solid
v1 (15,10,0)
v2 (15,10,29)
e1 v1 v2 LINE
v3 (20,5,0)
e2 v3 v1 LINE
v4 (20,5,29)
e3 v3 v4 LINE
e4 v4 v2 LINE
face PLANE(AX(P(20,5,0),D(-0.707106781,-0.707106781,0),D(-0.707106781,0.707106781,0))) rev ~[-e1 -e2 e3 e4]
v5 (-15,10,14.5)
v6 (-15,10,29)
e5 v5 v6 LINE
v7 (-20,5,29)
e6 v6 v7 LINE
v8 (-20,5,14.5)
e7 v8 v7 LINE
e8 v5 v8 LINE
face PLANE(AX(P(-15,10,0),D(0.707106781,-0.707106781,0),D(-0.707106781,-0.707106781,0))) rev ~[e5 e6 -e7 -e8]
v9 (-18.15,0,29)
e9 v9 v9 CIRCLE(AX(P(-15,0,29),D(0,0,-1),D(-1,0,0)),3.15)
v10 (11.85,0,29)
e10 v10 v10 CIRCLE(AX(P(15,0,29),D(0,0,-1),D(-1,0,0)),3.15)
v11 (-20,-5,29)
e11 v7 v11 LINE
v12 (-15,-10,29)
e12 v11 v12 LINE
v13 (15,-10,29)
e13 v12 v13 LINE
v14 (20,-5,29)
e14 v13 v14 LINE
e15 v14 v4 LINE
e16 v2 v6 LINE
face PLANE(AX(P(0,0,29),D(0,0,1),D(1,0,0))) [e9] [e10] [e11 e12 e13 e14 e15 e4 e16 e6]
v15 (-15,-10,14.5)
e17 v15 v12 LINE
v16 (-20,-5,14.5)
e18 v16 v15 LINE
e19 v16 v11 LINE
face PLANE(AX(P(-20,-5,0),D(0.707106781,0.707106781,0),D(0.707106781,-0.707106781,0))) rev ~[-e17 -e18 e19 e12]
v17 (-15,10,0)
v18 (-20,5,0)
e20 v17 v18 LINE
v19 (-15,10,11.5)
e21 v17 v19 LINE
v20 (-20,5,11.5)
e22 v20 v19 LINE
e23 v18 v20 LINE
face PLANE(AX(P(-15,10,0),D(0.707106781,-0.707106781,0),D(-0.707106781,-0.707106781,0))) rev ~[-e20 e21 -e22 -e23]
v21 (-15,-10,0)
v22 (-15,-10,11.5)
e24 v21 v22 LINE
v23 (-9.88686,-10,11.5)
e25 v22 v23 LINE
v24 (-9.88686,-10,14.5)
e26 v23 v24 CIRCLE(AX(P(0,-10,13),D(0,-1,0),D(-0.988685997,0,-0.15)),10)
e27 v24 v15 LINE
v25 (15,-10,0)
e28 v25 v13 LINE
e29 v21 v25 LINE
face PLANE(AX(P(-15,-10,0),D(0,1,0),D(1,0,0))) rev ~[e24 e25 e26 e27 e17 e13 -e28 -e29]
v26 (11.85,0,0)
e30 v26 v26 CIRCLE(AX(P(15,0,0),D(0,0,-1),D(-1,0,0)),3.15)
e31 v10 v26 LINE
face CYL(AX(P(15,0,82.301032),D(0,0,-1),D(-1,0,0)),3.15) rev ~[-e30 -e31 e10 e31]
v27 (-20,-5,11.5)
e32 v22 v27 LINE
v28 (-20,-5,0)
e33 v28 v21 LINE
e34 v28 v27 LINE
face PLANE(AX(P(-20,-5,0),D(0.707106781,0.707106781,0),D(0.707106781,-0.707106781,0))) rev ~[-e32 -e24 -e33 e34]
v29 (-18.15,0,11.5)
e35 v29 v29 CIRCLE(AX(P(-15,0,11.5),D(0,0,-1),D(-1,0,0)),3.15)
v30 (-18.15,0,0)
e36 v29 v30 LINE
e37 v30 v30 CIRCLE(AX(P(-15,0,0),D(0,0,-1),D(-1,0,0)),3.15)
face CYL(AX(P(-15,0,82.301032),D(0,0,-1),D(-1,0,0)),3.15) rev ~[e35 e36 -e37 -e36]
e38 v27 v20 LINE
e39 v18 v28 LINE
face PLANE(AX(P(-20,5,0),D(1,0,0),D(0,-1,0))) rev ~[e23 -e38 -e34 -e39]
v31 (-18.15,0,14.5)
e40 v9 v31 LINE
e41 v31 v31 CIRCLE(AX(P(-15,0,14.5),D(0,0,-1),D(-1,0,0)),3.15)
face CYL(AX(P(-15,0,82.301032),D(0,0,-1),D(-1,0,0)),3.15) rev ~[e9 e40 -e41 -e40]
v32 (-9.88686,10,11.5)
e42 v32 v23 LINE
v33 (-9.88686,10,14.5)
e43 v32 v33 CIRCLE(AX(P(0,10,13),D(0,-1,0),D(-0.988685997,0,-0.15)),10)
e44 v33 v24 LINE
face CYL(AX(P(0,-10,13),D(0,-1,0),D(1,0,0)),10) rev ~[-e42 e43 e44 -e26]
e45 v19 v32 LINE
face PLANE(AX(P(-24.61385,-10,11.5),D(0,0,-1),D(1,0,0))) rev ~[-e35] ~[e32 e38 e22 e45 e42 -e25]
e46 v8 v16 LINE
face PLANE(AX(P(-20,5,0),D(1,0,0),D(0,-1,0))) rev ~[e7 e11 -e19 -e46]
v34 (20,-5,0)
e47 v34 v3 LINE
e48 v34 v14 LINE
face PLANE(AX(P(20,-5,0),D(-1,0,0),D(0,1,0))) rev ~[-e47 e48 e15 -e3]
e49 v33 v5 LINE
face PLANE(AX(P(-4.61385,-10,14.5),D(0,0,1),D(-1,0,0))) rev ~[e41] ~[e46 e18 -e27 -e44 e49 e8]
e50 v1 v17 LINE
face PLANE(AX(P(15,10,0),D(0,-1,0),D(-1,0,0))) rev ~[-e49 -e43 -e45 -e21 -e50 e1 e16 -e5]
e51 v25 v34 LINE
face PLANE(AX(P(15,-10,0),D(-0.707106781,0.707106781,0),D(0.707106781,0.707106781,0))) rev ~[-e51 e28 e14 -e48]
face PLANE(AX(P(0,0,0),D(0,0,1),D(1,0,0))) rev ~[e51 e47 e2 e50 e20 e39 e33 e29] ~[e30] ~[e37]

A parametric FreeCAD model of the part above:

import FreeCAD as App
import Part
import Sketcher
from FreeCAD import Vector


def add_polygon(sketch, points):
    """Adds a closed chain of lines whose ends are joined by coincident constraints."""
    first, n = sketch.GeometryCount, len(points)
    for a, b in zip(points, points[1:] + points[:1]):
        sketch.addGeometry(Part.LineSegment(App.Vector(*a, 0), App.Vector(*b, 0)), False)
    for i in range(n):
        sketch.addConstraint(Sketcher.Constraint("Coincident", first + i, 2, first + (i + 1) % n, 1))

doc = App.newDocument("Part")
body = doc.addObject("PartDesign::Body", "Body")

# Sketch on XY plane
sketch1 = body.newObject("Sketcher::SketchObject", "Sketch")
sketch1.AttachmentSupport = (doc.getObject("XY_Plane"), [""])
sketch1.MapMode = "FlatFace"
add_polygon(sketch1, [(20, 5), (15, 10), (-15, 10), (-20, 5), (-20, -5), (-15, -10), (15, -10), (20, -5)])  # lines 0-7
sketch1.addConstraint(Sketcher.Constraint("Horizontal", 1))
sketch1.addConstraint(Sketcher.Constraint("Vertical", 3))
sketch1.addConstraint(Sketcher.Constraint("Horizontal", 5))
sketch1.addConstraint(Sketcher.Constraint("Vertical", 7))
sketch1.addConstraint(Sketcher.Constraint("Symmetric", 0, 2, 4, 2, -1, 1))
sketch1.addConstraint(Sketcher.Constraint("Symmetric", 2, 2, 6, 2, -1, 1))
sketch1.addConstraint(Sketcher.Constraint("Perpendicular", 0, 2))
sketch1.addConstraint(Sketcher.Constraint("Perpendicular", 2, 4))
sketch1.addConstraint(Sketcher.Constraint("Perpendicular", 4, 6))
sketch1.addConstraint(Sketcher.Constraint("Horizontal", 3, 2, 6, 2))
sketch1.addConstraint(Sketcher.Constraint("Vertical", 1, 2, 4, 2))
sketch1.addConstraint(Sketcher.Constraint("DistanceX", 1, 2, 1, 1, 30.0))
sketch1.addConstraint(Sketcher.Constraint("DistanceY", 3, 2, 3, 1, 10.0))
sketch1.addConstraint(Sketcher.Constraint("DistanceY", -1, 1, 0, 2, 10.0))
pad1 = body.newObject("PartDesign::Pad", "Pad")
pad1.Profile = sketch1
pad1.Length = 29

# Sketch on XZ plane
sketch2 = body.newObject("Sketcher::SketchObject", "Sketch001")
sketch2.AttachmentSupport = (doc.getObject("XZ_Plane"), [""])
sketch2.MapMode = "FlatFace"
sketch2.AttachmentOffset = App.Placement(Vector(0, 0, 10), App.Rotation())
sketch2.addGeometry(Part.Circle(Vector(0, 13, 0), Vector(0, 0, 1), 10), False)
sketch2.addConstraint(Sketcher.Constraint("PointOnObject", 0, 3, -2))
sketch2.addConstraint(Sketcher.Constraint("Diameter", 0, 20.0))
sketch2.addConstraint(Sketcher.Constraint("DistanceY", -1, 1, 0, 3, 13.0))
pocket1 = body.newObject("PartDesign::Pocket", "Pocket")
pocket1.Profile = sketch2
pocket1.Type = "ThroughAll"

# Sketch on XZ plane
sketch3 = body.newObject("Sketcher::SketchObject", "Sketch002")
sketch3.AttachmentSupport = (doc.getObject("XZ_Plane"), [""])
sketch3.MapMode = "FlatFace"
sketch3.AttachmentOffset = App.Placement(Vector(0, 0, 10), App.Rotation())
add_polygon(sketch3, [(-24.61385, 14.5), (-24.61385, 11.5), (-4.61385, 11.5), (-4.61385, 14.5)])  # lines 0-3
sketch3.addConstraint(Sketcher.Constraint("Vertical", 0))
sketch3.addConstraint(Sketcher.Constraint("Horizontal", 1))
sketch3.addConstraint(Sketcher.Constraint("Vertical", 2))
sketch3.addConstraint(Sketcher.Constraint("Horizontal", 3))
sketch3.addConstraint(Sketcher.Constraint("DistanceX", 1, 1, 1, 2, 20.0))
sketch3.addConstraint(Sketcher.Constraint("DistanceY", 0, 2, 0, 1, 3.0))
sketch3.addConstraint(Sketcher.Constraint("DistanceY", -1, 1, 0, 2, 11.5))
sketch3.addConstraint(Sketcher.Constraint("DistanceX", 0, 2, -1, 1, 24.61385))
pocket2 = body.newObject("PartDesign::Pocket", "Pocket001")
pocket2.Profile = sketch3
pocket2.Type = "ThroughAll"

# Sketch on XY plane
sketch4 = body.newObject("Sketcher::SketchObject", "Sketch003")
sketch4.AttachmentSupport = (doc.getObject("XY_Plane"), [""])
sketch4.MapMode = "FlatFace"
sketch4.AttachmentOffset = App.Placement(Vector(0, 0, 29), App.Rotation())
sketch4.addGeometry(Part.Circle(Vector(-15, 0, 0), Vector(0, 0, 1), 3.15), False)
sketch4.addGeometry(Part.Circle(Vector(15, 0, 0), Vector(0, 0, 1), 3.15), False)
sketch4.addConstraint(Sketcher.Constraint("Equal", 0, 1))
sketch4.addConstraint(Sketcher.Constraint("Symmetric", 0, 3, 1, 3, -1, 1))
sketch4.addConstraint(Sketcher.Constraint("PointOnObject", 0, 3, -1))
sketch4.addConstraint(Sketcher.Constraint("Diameter", 0, 6.3))
sketch4.addConstraint(Sketcher.Constraint("DistanceX", 0, 3, -1, 1, 15.0))
doc.recompute()
hole = body.newObject("PartDesign::Hole", "Hole")
hole.Profile = sketch4
hole.ThreadType = "None"
hole.Diameter = 6.3
hole.DepthType = "ThroughAll"

doc.recompute()
